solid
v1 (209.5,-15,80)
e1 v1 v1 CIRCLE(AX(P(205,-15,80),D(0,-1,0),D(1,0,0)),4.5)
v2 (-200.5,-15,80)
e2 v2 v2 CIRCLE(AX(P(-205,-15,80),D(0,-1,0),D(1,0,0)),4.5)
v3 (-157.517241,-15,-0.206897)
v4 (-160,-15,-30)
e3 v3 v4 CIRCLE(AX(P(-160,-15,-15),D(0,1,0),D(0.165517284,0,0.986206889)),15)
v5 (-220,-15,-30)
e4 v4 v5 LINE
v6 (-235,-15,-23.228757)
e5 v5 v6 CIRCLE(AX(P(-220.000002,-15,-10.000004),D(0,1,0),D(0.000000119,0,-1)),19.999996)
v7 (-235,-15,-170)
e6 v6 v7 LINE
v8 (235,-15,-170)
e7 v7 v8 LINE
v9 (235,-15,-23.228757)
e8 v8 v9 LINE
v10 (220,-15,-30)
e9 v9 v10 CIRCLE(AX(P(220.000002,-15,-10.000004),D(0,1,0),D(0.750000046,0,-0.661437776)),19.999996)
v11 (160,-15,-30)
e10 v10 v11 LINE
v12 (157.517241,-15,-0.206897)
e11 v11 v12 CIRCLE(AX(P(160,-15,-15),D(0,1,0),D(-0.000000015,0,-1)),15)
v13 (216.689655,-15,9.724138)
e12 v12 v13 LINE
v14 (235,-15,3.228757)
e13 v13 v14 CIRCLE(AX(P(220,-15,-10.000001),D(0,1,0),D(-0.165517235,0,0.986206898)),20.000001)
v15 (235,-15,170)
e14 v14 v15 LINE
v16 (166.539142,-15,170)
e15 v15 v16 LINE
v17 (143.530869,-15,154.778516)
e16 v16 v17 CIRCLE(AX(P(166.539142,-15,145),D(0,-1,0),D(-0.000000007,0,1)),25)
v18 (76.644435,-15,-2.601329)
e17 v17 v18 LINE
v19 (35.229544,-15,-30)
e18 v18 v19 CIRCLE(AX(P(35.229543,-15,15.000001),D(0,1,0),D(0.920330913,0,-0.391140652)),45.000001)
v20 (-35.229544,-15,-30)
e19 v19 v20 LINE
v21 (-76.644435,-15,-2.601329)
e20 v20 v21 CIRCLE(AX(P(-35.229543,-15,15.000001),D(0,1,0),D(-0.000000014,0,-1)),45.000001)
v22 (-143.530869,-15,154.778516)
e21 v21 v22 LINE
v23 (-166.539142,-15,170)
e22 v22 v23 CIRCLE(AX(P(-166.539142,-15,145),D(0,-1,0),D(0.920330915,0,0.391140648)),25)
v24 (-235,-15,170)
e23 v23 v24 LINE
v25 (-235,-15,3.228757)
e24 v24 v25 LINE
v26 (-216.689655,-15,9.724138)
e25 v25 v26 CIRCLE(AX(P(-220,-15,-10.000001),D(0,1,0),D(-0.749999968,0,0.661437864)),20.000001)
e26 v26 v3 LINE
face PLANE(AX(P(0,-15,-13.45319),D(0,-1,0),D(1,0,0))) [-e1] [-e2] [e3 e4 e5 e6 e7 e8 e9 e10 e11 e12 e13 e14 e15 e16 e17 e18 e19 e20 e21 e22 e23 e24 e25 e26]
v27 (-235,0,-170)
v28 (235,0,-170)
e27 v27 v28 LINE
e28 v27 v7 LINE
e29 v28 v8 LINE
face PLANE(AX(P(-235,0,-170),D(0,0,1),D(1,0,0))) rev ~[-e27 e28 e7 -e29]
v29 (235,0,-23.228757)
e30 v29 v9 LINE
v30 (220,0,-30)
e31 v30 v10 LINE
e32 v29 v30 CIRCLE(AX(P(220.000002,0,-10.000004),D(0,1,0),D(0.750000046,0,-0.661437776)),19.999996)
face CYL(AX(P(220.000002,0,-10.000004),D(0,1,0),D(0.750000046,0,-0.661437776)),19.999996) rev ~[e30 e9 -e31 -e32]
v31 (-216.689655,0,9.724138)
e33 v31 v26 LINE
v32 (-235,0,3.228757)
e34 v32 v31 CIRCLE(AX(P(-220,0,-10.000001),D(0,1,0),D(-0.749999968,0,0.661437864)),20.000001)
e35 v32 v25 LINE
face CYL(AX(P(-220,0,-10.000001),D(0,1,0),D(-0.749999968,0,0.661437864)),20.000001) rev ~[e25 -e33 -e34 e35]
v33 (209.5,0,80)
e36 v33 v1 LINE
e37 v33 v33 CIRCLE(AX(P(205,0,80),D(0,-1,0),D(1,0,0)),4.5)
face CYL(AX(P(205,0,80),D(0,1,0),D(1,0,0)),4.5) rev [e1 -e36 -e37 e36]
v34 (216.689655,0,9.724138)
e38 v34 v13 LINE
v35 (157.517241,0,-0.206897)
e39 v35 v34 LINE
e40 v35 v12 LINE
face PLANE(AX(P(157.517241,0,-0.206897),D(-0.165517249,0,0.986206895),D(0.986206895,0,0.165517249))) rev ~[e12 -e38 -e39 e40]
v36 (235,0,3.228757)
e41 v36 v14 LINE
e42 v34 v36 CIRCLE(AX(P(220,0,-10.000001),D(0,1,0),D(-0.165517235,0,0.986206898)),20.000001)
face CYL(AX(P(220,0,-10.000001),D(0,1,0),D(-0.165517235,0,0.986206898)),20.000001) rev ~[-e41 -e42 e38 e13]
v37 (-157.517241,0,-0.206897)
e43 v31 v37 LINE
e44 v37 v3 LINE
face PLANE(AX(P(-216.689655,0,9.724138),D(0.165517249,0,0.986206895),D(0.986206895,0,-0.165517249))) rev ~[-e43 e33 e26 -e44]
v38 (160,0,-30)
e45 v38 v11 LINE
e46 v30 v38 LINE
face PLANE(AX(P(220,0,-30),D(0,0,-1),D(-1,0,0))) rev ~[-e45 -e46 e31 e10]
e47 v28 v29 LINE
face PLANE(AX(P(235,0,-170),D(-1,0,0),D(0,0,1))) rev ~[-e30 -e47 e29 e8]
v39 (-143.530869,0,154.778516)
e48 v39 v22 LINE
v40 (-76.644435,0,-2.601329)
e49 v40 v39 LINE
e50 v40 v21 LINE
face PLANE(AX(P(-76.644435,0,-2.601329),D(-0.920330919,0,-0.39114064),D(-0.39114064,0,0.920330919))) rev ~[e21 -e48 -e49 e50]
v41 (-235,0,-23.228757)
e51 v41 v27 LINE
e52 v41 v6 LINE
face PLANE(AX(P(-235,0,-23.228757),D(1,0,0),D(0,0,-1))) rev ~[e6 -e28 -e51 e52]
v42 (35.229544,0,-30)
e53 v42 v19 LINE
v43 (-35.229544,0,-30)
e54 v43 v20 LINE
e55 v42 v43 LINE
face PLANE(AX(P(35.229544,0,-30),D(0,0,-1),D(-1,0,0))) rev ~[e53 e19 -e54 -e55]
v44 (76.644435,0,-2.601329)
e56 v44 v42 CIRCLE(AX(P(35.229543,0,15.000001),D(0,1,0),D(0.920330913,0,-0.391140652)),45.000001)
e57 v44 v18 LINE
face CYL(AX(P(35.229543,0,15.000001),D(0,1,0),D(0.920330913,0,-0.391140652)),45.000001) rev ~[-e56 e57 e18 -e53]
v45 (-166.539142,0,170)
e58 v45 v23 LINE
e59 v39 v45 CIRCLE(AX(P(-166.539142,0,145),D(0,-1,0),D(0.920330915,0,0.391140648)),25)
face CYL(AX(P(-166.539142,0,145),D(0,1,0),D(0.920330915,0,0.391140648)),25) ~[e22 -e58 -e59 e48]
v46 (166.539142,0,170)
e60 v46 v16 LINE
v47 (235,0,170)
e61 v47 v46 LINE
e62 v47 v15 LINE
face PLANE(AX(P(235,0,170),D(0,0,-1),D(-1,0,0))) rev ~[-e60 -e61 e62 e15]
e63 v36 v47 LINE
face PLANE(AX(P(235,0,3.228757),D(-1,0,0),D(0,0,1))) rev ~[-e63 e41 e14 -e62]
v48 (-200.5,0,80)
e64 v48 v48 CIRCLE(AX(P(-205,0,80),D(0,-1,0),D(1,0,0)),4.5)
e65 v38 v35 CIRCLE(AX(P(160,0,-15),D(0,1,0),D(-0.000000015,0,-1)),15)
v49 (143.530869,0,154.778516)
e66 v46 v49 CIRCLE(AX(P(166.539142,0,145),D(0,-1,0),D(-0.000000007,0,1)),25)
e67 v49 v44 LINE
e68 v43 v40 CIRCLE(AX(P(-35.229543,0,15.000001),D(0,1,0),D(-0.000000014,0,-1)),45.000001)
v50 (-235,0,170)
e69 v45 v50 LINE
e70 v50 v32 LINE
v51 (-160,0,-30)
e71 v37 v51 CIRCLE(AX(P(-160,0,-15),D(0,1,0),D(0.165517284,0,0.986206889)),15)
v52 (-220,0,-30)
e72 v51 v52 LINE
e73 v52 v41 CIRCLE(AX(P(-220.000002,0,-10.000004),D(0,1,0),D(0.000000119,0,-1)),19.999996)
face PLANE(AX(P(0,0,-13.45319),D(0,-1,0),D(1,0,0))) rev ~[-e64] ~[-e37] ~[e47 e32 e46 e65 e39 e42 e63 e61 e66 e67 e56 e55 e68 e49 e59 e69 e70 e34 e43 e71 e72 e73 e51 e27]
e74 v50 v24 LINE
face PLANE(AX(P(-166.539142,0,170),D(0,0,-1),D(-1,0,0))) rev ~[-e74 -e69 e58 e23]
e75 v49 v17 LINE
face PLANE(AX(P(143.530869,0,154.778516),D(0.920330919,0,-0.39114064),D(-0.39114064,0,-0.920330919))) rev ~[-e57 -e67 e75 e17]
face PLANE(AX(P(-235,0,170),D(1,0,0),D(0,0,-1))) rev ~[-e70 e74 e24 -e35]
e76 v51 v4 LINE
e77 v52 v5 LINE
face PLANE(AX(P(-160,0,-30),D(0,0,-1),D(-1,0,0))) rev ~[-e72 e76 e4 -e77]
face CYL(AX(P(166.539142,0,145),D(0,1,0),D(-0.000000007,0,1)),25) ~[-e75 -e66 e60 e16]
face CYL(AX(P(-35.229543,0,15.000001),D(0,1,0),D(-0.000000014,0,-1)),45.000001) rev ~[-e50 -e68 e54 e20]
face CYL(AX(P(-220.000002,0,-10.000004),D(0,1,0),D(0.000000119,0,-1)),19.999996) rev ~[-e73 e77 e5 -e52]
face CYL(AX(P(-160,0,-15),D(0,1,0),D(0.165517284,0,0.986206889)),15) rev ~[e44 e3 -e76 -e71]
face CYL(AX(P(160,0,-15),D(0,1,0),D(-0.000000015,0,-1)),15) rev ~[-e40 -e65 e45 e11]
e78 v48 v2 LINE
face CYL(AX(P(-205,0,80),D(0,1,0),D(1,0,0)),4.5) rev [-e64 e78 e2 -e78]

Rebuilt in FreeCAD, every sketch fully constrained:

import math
import FreeCAD as App
import Part
import Sketcher
from FreeCAD import Vector

doc = App.newDocument("Part")
body = doc.addObject("PartDesign::Body", "Body")

sketch1 = body.newObject("Sketcher::SketchObject", "Sketch")
sketch1.AttachmentSupport = (doc.getObject("XZ_Plane"), [""])
sketch1.MapMode = "FlatFace"
sketch1.addGeometry([
    Part.LineSegment(Vector(-166.5, 170, 0), Vector(-235, 170, 0)),
    Part.LineSegment(Vector(-235, 170, 0), Vector(-235, 3.2, 0)),
    Part.ArcOfCircle(Part.Circle(Vector(-220, -10, 0), Vector(0, 0, 1), 20), math.radians(80), math.radians(139)),
    Part.LineSegment(Vector(-216.7, 9.7, 0), Vector(-157.5, -0.2, 0)),
    Part.ArcOfCircle(Part.Circle(Vector(-160, -15, 0), Vector(0, 0, 1), 15), math.radians(-90), math.radians(80)),
    Part.LineSegment(Vector(-160, -30, 0), Vector(-220, -30, 0)),
    Part.ArcOfCircle(Part.Circle(Vector(-220, -10, 0), Vector(0, 0, 1), 20), math.radians(-139), math.radians(-90)),
    Part.LineSegment(Vector(-235, -23.2, 0), Vector(-235, -170, 0)),
    Part.LineSegment(Vector(-235, -170, 0), Vector(235, -170, 0)),
    Part.LineSegment(Vector(235, -170, 0), Vector(235, -23.2, 0)),
    Part.ArcOfCircle(Part.Circle(Vector(220, -10, 0), Vector(0, 0, 1), 20), math.radians(-90), math.radians(-41)),
    Part.LineSegment(Vector(220, -30, 0), Vector(160, -30, 0)),
    Part.ArcOfCircle(Part.Circle(Vector(160, -15, 0), Vector(0, 0, 1), 15), math.radians(100), math.radians(270)),
    Part.LineSegment(Vector(157.5, -0.2, 0), Vector(216.7, 9.7, 0)),
    Part.ArcOfCircle(Part.Circle(Vector(220, -10, 0), Vector(0, 0, 1), 20), math.radians(41), math.radians(100)),
    Part.LineSegment(Vector(235, 3.2, 0), Vector(235, 170, 0)),
    Part.LineSegment(Vector(235, 170, 0), Vector(166.5, 170, 0)),
    Part.ArcOfCircle(Part.Circle(Vector(166.5, 145, 0), Vector(0, 0, 1), 25), math.radians(90), math.radians(157)),
    Part.LineSegment(Vector(143.5, 154.8, 0), Vector(76.6, -2.6, 0)),
    Part.ArcOfCircle(Part.Circle(Vector(35.2, 15, 0), Vector(0, 0, 1), 45), math.radians(-90), math.radians(-23)),
    Part.LineSegment(Vector(35.2, -30, 0), Vector(-35.2, -30, 0)),
    Part.ArcOfCircle(Part.Circle(Vector(-35.2, 15, 0), Vector(0, 0, 1), 45), math.radians(-157), math.radians(-90)),
    Part.LineSegment(Vector(-76.6, -2.6, 0), Vector(-143.5, 154.8, 0)),
    Part.ArcOfCircle(Part.Circle(Vector(-166.5, 145, 0), Vector(0, 0, 1), 25), math.radians(23), math.radians(90)),
    Part.Circle(Vector(-205, 80, 0), Vector(0, 0, 1), 4.5),
    Part.Circle(Vector(205, 80, 0), Vector(0, 0, 1), 4.5),
], False)
sketch1.addConstraint([
    Sketcher.Constraint("Coincident", 0, 2, 1, 1),
    Sketcher.Constraint("Coincident", 1, 2, 2, 2),
    Sketcher.Constraint("Tangent", 2, 1, 3, 1),
    Sketcher.Constraint("Tangent", 3, 2, 4, 2),
    Sketcher.Constraint("Tangent", 4, 1, 5, 1),
    Sketcher.Constraint("Tangent", 5, 2, 6, 2),
    Sketcher.Constraint("Coincident", 6, 1, 7, 1),
    Sketcher.Constraint("Coincident", 7, 2, 8, 1),
    Sketcher.Constraint("Coincident", 8, 2, 9, 1),
    Sketcher.Constraint("Coincident", 9, 2, 10, 2),
    Sketcher.Constraint("Tangent", 10, 1, 11, 1),
    Sketcher.Constraint("Tangent", 11, 2, 12, 2),
    Sketcher.Constraint("Tangent", 12, 1, 13, 1),
    Sketcher.Constraint("Tangent", 13, 2, 14, 2),
    Sketcher.Constraint("Coincident", 14, 1, 15, 1),
    Sketcher.Constraint("Coincident", 15, 2, 16, 1),
    Sketcher.Constraint("Tangent", 16, 2, 17, 1),
    Sketcher.Constraint("Tangent", 17, 2, 18, 1),
    Sketcher.Constraint("Tangent", 18, 2, 19, 2),
    Sketcher.Constraint("Tangent", 19, 1, 20, 1),
    Sketcher.Constraint("Tangent", 20, 2, 21, 2),
    Sketcher.Constraint("Tangent", 21, 1, 22, 1),
    Sketcher.Constraint("Tangent", 22, 2, 23, 1),
    Sketcher.Constraint("Tangent", 23, 2, 0, 1),
    Sketcher.Constraint("Horizontal", 0),
    Sketcher.Constraint("Vertical", 1),
    Sketcher.Constraint("Horizontal", 5),
    Sketcher.Constraint("Vertical", 7),
    Sketcher.Constraint("Horizontal", 8),
    Sketcher.Constraint("Vertical", 9),
    Sketcher.Constraint("Horizontal", 11),
    Sketcher.Constraint("Vertical", 15),
    Sketcher.Constraint("Horizontal", 16),
    Sketcher.Constraint("Horizontal", 20),
    Sketcher.Constraint("Coincident", 6, 3, 2, 3),
    Sketcher.Constraint("Coincident", 14, 3, 10, 3),
    Sketcher.Constraint("Equal", 6, 10),
    Sketcher.Constraint("Equal", 4, 12),
    Sketcher.Constraint("Equal", 2, 14),
    Sketcher.Constraint("Equal", 19, 21),
    Sketcher.Constraint("Equal", 17, 23),
    Sketcher.Constraint("Equal", 24, 25),
    Sketcher.Constraint("Symmetric", 0, 2, 8, 2, -1, 1),
    Sketcher.Constraint("Symmetric", 7, 2, 15, 2, -1, 1),
    Sketcher.Constraint("Symmetric", 2, 3, 10, 3, -2),
    Sketcher.Constraint("Symmetric", 24, 3, 25, 3, -2),
    Sketcher.Constraint("Symmetric", 18, 2, 21, 1, -2),
    Sketcher.Constraint("Horizontal", 6, 1, 9, 2),
    Sketcher.Constraint("Horizontal", 2, 1, 13, 2),
    Sketcher.Constraint("Horizontal", 11, 2, 19, 1),
    Sketcher.Constraint("Diameter", 24, 9.0),
    Sketcher.Constraint("Radius", 2, 20.000001),
    Sketcher.Constraint("Radius", 4, 15.0),
    Sketcher.Constraint("Radius", 17, 25.0),
    Sketcher.Constraint("Radius", 19, 45.000001),
    Sketcher.Constraint("DistanceX", 5, 2, 5, 1, 60.0),
    Sketcher.Constraint("DistanceX", 8, 1, 8, 2, 470.0),
    Sketcher.Constraint("Distance", 3, 60.0),
    Sketcher.Constraint("DistanceX", 2, 3, -1, 1, 220.0),
    Sketcher.Constraint("DistanceY", 2, 3, -1, 1, 10.000001),
    Sketcher.Constraint("DistanceY", -1, 1, 17, 3, 145.0),
    Sketcher.Constraint("DistanceX", 24, 3, -1, 1, 205.0),
    Sketcher.Constraint("DistanceY", -1, 1, 24, 3, 80.0),
    Sketcher.Constraint("DistanceX", 0, 2, 0, 1, 68.460858),
    Sketcher.Constraint("DistanceX", 19, 3, 17, 3, 131.309599),
])
pad1 = body.newObject("PartDesign::Pad", "Pad")
pad1.Profile = sketch1
pad1.Length = 15

doc.recompute()
